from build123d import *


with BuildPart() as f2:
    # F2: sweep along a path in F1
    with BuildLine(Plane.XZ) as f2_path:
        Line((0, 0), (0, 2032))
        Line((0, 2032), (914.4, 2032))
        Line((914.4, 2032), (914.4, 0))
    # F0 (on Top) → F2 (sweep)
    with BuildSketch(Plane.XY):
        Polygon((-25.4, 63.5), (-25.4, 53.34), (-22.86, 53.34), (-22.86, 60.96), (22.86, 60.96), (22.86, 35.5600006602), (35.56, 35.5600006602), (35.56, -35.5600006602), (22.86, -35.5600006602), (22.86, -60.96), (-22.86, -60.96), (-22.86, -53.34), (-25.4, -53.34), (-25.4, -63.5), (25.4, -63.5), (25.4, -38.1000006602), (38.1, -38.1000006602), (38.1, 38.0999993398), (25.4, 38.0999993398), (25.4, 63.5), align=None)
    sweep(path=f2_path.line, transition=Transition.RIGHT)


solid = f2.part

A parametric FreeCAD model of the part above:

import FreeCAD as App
import Part
import Sketcher
from FreeCAD import Vector
Q = App.Units.Quantity


def add_polygon(sketch, points):
    """Adds a closed chain of lines whose ends are joined by coincident constraints."""
    first, n = sketch.GeometryCount, len(points)
    for a, b in zip(points, points[1:] + points[:1]):
        sketch.addGeometry(Part.LineSegment(App.Vector(*a, 0), App.Vector(*b, 0)), False)
    for i in range(n):
        sketch.addConstraint(Sketcher.Constraint("Coincident", first + i, 2, first + (i + 1) % n, 1))

doc = App.newDocument("Part")
body = doc.addObject("PartDesign::Body", "Body")

# Sketch on XY plane
sketch1 = body.newObject("Sketcher::SketchObject", "Sketch")
sketch1.AttachmentSupport = (doc.getObject("XY_Plane"), [""])
sketch1.MapMode = "FlatFace"
add_polygon(sketch1, [(-25.4, 63.5), (-25.4, 53.34), (-22.86, 53.34), (-22.86, 60.96), (22.86, 60.96), (22.86, 35.560001), (35.56, 35.560001), (35.56, -35.560001), (22.86, -35.560001), (22.86, -60.96), (-22.86, -60.96), (-22.86, -53.34), (-25.4, -53.34), (-25.4, -63.5), (25.4, -63.5), (25.4, -38.100001), (38.1, -38.100001), (38.1, 38.099999), (25.4, 38.099999), (25.4, 63.5)])  # lines 0-19
sketch1.addConstraint([
    Sketcher.Constraint("Vertical", 0),
    Sketcher.Constraint("Horizontal", 1),
    Sketcher.Constraint("Vertical", 2),
    Sketcher.Constraint("Horizontal", 3),
    Sketcher.Constraint("Vertical", 4),
    Sketcher.Constraint("Horizontal", 5),
    Sketcher.Constraint("Vertical", 6),
    Sketcher.Constraint("Horizontal", 7),
    Sketcher.Constraint("Vertical", 8),
    Sketcher.Constraint("Horizontal", 9),
    Sketcher.Constraint("Vertical", 10),
    Sketcher.Constraint("Horizontal", 11),
    Sketcher.Constraint("Vertical", 12),
    Sketcher.Constraint("Horizontal", 13),
    Sketcher.Constraint("Vertical", 14),
    Sketcher.Constraint("Horizontal", 15),
    Sketcher.Constraint("Vertical", 16),
    Sketcher.Constraint("Horizontal", 17),
    Sketcher.Constraint("Vertical", 18),
    Sketcher.Constraint("Horizontal", 19),
    Sketcher.Constraint("Symmetric", 2, 2, 8, 2, -1, 1),
    Sketcher.Constraint("Symmetric", 12, 2, 18, 2, -1, 1),
    Sketcher.Constraint("Symmetric", 4, 2, 7, 2, -1),
    Sketcher.Constraint("Symmetric", 1, 2, 10, 2, -1),
    Sketcher.Constraint("Symmetric", 14, 2, 17, 2, -1),
    Sketcher.Constraint("Vertical", 0, 2, 11, 2),
    Sketcher.Constraint("Equal", 7, 15),
    Sketcher.Constraint("Equal", 8, 14),
    Sketcher.Constraint("DistanceX", 13, 1, 13, 2, Q("2 in")),
    Sketcher.Constraint("DistanceY", 4, 2, 4, 1, Q("1 in")),
    Sketcher.Constraint("DistanceY", 16, 1, 16, 2, Q("3 in")),
    Sketcher.Constraint("DistanceX", 1, 1, 1, 2, Q("0.1 in")),
    Sketcher.Constraint("DistanceX", 5, 1, 5, 2, Q("0.5 in")),
    Sketcher.Constraint("DistanceY", 0, 2, 0, 1, Q("0.4 in")),
    Sketcher.Constraint("DistanceY", 2, 1, 2, 2, Q("0.3 in")),
])

# Sketch on XZ plane
sketch2 = body.newObject("Sketcher::SketchObject", "Sketch001")
sketch2.AttachmentSupport = (doc.getObject("XZ_Plane"), [""])
sketch2.MapMode = "FlatFace"
sketch2.addGeometry([
    Part.LineSegment(Vector(0, 0, 0), Vector(0, 2032, 0)),
    Part.LineSegment(Vector(0, 2032, 0), Vector(914.4, 2032, 0)),
    Part.LineSegment(Vector(914.4, 2032, 0), Vector(914.4, 0, 0)),
], False)
sketch2.addConstraint([
    Sketcher.Constraint("Coincident", 0, 2, 1, 1),
    Sketcher.Constraint("Coincident", 1, 2, 2, 1),
    Sketcher.Constraint("Vertical", 0),
    Sketcher.Constraint("Horizontal", 1),
    Sketcher.Constraint("Vertical", 2),
    Sketcher.Constraint("Coincident", 0, 1, -1, 1),
    Sketcher.Constraint("PointOnObject", 2, 2, -1),
    Sketcher.Constraint("DistanceX", 1, 1, 1, 2, Q("36 in")),
    Sketcher.Constraint("DistanceY", 0, 1, 0, 2, Q("80 in")),
])
doc.recompute()

additivepipe = body.newObject("PartDesign::AdditivePipe", "AdditivePipe")
additivepipe.Profile = sketch1
additivepipe.Spine = (sketch2, ["Edge1", "Edge2", "Edge3"])
additivepipe.Transition = "Right corner"

doc.recompute()
